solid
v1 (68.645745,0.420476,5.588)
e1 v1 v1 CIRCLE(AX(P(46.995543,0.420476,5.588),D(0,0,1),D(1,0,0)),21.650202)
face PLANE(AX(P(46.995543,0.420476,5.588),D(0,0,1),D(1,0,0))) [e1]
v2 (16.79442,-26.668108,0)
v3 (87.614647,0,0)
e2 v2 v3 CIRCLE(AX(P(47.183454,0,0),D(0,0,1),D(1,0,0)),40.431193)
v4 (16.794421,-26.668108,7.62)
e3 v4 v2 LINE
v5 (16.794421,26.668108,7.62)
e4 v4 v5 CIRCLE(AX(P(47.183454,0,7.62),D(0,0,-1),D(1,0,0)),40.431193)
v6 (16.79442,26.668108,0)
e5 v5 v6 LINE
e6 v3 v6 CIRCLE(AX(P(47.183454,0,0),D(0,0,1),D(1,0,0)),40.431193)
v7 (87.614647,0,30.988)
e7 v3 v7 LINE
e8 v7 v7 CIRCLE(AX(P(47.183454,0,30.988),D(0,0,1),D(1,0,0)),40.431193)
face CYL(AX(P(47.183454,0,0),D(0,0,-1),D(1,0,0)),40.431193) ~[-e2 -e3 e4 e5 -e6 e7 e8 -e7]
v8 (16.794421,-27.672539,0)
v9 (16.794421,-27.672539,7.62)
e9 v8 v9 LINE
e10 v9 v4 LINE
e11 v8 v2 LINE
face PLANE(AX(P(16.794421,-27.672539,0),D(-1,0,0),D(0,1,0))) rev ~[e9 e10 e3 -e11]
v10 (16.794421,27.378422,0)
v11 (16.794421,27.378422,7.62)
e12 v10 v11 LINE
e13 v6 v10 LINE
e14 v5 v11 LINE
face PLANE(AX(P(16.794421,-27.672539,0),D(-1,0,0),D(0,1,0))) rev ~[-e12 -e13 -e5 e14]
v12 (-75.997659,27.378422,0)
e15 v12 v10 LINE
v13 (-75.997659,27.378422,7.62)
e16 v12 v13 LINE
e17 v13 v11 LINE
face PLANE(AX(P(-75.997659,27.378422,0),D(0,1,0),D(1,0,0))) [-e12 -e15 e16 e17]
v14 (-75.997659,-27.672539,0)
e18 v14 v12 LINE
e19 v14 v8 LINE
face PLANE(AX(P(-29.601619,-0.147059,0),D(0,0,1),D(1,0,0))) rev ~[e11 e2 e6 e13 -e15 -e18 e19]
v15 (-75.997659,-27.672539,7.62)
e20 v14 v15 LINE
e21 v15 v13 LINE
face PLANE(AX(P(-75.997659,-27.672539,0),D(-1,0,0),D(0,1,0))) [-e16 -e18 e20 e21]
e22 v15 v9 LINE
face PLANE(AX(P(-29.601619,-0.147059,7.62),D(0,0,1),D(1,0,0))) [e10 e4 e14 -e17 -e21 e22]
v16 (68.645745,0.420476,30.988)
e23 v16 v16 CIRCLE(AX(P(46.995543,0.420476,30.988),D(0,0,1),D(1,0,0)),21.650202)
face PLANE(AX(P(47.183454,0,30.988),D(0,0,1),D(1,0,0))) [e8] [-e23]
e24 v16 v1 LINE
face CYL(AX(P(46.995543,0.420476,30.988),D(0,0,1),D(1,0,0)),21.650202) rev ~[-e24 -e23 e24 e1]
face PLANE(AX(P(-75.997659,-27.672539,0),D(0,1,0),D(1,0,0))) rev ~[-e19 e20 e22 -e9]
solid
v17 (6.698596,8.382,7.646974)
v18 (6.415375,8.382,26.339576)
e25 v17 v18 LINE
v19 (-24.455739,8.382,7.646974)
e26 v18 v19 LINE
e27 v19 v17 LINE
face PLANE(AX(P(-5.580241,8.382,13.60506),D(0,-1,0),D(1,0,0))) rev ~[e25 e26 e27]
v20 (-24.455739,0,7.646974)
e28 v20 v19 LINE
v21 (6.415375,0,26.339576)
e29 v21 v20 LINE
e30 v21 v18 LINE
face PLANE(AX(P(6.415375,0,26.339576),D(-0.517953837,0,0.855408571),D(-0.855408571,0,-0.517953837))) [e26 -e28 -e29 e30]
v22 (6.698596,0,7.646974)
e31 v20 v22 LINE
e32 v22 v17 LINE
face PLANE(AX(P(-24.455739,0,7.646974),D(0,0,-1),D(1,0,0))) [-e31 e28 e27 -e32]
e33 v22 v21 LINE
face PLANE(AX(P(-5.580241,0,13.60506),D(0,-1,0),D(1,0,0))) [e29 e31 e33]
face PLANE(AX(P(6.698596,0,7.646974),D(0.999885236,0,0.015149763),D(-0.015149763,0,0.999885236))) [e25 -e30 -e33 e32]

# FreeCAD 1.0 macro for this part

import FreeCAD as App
import Part
import Sketcher
from FreeCAD import Vector
Q = App.Units.Quantity


def add_polygon(sketch, points):
    """Adds a closed chain of lines whose ends are joined by coincident constraints."""
    first, n = sketch.GeometryCount, len(points)
    for a, b in zip(points, points[1:] + points[:1]):
        sketch.addGeometry(Part.LineSegment(App.Vector(*a, 0), App.Vector(*b, 0)), False)
    for i in range(n):
        sketch.addConstraint(Sketcher.Constraint("Coincident", first + i, 2, first + (i + 1) % n, 1))

doc = App.newDocument("Part")
body = doc.addObject("PartDesign::Body", "Body")

sketch1 = body.newObject("Sketcher::SketchObject", "Sketch")
sketch1.AttachmentSupport = (doc.getObject("XY_Plane"), [""])
sketch1.MapMode = "FlatFace"
sketch1.addGeometry(Part.Circle(Vector(47, 0, 0), Vector(0, 0, 1), 40), False)
sketch1.addConstraint(Sketcher.Constraint("PointOnObject", 0, 3, -1))
sketch1.addConstraint(Sketcher.Constraint("Diameter", 0, 80.862386))
sketch1.addConstraint(Sketcher.Constraint("DistanceX", -1, 1, 0, 3, 47.183454))
pad1 = body.newObject("PartDesign::Pad", "Pad")
pad1.Profile = sketch1
pad1.Length = Q("1.22 in")

sketch2 = body.newObject("Sketcher::SketchObject", "Sketch001")
sketch2.AttachmentSupport = (doc.getObject("XY_Plane"), [""])
sketch2.MapMode = "FlatFace"
add_polygon(sketch2, [(-76, 27), (-76, -28), (17, -28), (17, 27)])
sketch2.addConstraint(Sketcher.Constraint("Vertical", 0))
sketch2.addConstraint(Sketcher.Constraint("Horizontal", 1))
sketch2.addConstraint(Sketcher.Constraint("Vertical", 2))
sketch2.addConstraint(Sketcher.Constraint("Horizontal", 3))
sketch2.addConstraint(Sketcher.Constraint("DistanceX", 1, 1, 1, 2, 92.792079))
sketch2.addConstraint(Sketcher.Constraint("DistanceY", 0, 2, 0, 1, 55.050961))
sketch2.addConstraint(Sketcher.Constraint("DistanceX", 0, 2, -1, 1, 75.997659))
sketch2.addConstraint(Sketcher.Constraint("DistanceY", 0, 2, -1, 1, 27.672539))
pad2 = body.newObject("PartDesign::Pad", "Pad001")
pad2.Profile = sketch2
pad2.Length = Q("0.3 in")

sketch3 = body.newObject("Sketcher::SketchObject", "Sketch002")
sketch3.AttachmentSupport = (doc.getObject("XY_Plane"), [""])
sketch3.MapMode = "FlatFace"
sketch3.AttachmentOffset = App.Placement(Vector(0, 0, 1.22 * 25.4), App.Rotation())
sketch3.addGeometry(Part.Circle(Vector(47, 0, 0), Vector(0, 0, 1), 22), False)
sketch3.addConstraint(Sketcher.Constraint("Diameter", 0, 43.300404))
sketch3.addConstraint(Sketcher.Constraint("DistanceX", -1, 1, 0, 3, 46.995543))
sketch3.addConstraint(Sketcher.Constraint("DistanceY", -1, 1, 0, 3, 0.420476))
pocket1 = body.newObject("PartDesign::Pocket", "Pocket")
pocket1.Profile = sketch3
pocket1.Length = Q("1 in")
body2 = doc.addObject("PartDesign::Body", "Body001")

sketch4 = body2.newObject("Sketcher::SketchObject", "Sketch003")
sketch4.AttachmentSupport = (doc.getObject("XZ_Plane001"), [""])
sketch4.MapMode = "FlatFace"
add_polygon(sketch4, [(7, 8), (6, 26), (-24, 8)])
sketch4.addConstraint(Sketcher.Constraint("Horizontal", 2))
sketch4.addConstraint(Sketcher.Constraint("Distance", 1, 36.08932))
sketch4.addConstraint(Sketcher.Constraint("DistanceX", 2, 1, 2, 2, 31.154335))
sketch4.addConstraint(Sketcher.Constraint("DistanceX", 1, 2, -1, 1, 24.455739))
sketch4.addConstraint(Sketcher.Constraint("DistanceX", 0, 2, 2, 2, 0.283221))
sketch4.addConstraint(Sketcher.Constraint("DistanceY", -1, 1, 0, 2, 26.339576))
pad3 = body2.newObject("PartDesign::Pad", "Pad002")
pad3.Profile = sketch4
pad3.Length = Q("0.33 in")
pad3.Reversed = True

doc.recompute()
